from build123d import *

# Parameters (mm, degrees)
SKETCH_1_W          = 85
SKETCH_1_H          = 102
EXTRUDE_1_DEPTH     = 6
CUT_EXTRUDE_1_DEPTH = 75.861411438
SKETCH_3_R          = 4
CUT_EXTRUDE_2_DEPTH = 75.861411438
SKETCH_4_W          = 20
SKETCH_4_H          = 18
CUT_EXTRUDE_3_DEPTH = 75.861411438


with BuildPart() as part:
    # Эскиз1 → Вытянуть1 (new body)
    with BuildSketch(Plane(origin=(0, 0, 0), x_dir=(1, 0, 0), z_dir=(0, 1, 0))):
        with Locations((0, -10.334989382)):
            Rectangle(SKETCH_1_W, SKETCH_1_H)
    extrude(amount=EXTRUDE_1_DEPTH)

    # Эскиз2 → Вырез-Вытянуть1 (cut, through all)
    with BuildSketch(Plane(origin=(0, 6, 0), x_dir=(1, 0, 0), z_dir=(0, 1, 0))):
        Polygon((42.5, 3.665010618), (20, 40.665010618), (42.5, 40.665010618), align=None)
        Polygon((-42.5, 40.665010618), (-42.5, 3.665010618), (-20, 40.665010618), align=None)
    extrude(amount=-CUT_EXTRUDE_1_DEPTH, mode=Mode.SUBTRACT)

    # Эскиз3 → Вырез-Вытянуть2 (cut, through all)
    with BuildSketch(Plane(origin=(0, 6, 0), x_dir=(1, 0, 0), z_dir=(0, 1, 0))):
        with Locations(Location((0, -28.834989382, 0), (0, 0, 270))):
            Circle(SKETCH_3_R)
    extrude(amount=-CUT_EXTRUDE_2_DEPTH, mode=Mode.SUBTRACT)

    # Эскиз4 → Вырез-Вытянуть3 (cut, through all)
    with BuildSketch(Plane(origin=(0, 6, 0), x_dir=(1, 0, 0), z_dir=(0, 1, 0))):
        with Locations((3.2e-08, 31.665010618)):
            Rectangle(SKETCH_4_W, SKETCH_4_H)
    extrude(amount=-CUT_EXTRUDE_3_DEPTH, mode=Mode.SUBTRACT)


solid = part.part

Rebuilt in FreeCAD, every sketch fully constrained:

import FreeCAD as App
import Part
import Sketcher


def add_polygon(sketch, points):
    """Adds a closed chain of lines whose ends are joined by coincident constraints."""
    first, n = sketch.GeometryCount, len(points)
    for a, b in zip(points, points[1:] + points[:1]):
        sketch.addGeometry(Part.LineSegment(App.Vector(*a, 0), App.Vector(*b, 0)), False)
    for i in range(n):
        sketch.addConstraint(Sketcher.Constraint("Coincident", first + i, 2, first + (i + 1) % n, 1))

doc = App.newDocument("Part")
body = doc.addObject("PartDesign::Body", "Body")

# Sketch on XZ plane
sketch1 = body.newObject("Sketcher::SketchObject", "Sketch")
sketch1.AttachmentSupport = (doc.getObject("XZ_Plane"), [""])
sketch1.MapMode = "FlatFace"
add_polygon(sketch1, [(-42, -41), (-42, 61), (42, 61), (42, -41)])  # lines 0-3
sketch1.addConstraint([
    Sketcher.Constraint("Vertical", 0),
    Sketcher.Constraint("Horizontal", 1),
    Sketcher.Constraint("Vertical", 2),
    Sketcher.Constraint("Horizontal", 3),
    Sketcher.Constraint("DistanceX", 1, 1, 1, 2, 85.0),
    Sketcher.Constraint("DistanceY", 0, 1, 0, 2, 102.0),
    Sketcher.Constraint("DistanceX", 0, 2, -1, 1, 42.5),
    Sketcher.Constraint("DistanceY", -1, 1, 0, 2, 61.334989),
])
pad1 = body.newObject("PartDesign::Pad", "Pad")
pad1.Profile = sketch1
pad1.Length = 6
pad1.Reversed = True

# Sketch on XZ plane
sketch2 = body.newObject("Sketcher::SketchObject", "Sketch001")
sketch2.AttachmentSupport = (doc.getObject("XZ_Plane"), [""])
sketch2.MapMode = "FlatFace"
sketch2.AttachmentOffset = App.Placement(App.Vector(0, 0, -6), App.Rotation())
add_polygon(sketch2, [(20, -41), (42, -4), (42, -41)])  # lines 0-2
add_polygon(sketch2, [(-42, -41), (-42, -4), (-20, -41)])  # lines 3-5
sketch2.addConstraint([
    Sketcher.Constraint("Vertical", 1),
    Sketcher.Constraint("Horizontal", 2),
    Sketcher.Constraint("Vertical", 3),
    Sketcher.Constraint("Horizontal", 5),
    Sketcher.Constraint("Symmetric", 0, 2, 3, 2, -2),
    Sketcher.Constraint("Symmetric", 2, 2, 4, 2, -2),
    Sketcher.Constraint("DistanceY", 1, 2, 1, 1, 37.0),
    Sketcher.Constraint("DistanceX", 2, 2, 2, 1, 22.5),
    Sketcher.Constraint("DistanceX", -1, 1, 2, 2, 20.0),
    Sketcher.Constraint("DistanceY", 0, 2, -1, 1, 3.665011),
])
pocket1 = body.newObject("PartDesign::Pocket", "Pocket")
pocket1.Profile = sketch2
pocket1.Type = "ThroughAll"
pocket1.Reversed = True

# Sketch on XZ plane
sketch3 = body.newObject("Sketcher::SketchObject", "Sketch002")
sketch3.AttachmentSupport = (doc.getObject("XZ_Plane"), [""])
sketch3.MapMode = "FlatFace"
sketch3.AttachmentOffset = App.Placement(App.Vector(0, 0, -6), App.Rotation())
sketch3.addGeometry(Part.Circle(App.Vector(0, 28.8, 0), App.Vector(0, 0, 1), 4), False)
sketch3.addConstraint([
    Sketcher.Constraint("PointOnObject", 0, 3, -2),
    Sketcher.Constraint("Diameter", 0, 8.0),
    Sketcher.Constraint("DistanceY", -1, 1, 0, 3, 28.834989),
])
pocket2 = body.newObject("PartDesign::Pocket", "Pocket001")
pocket2.Profile = sketch3
pocket2.Type = "ThroughAll"
pocket2.Reversed = True

# Sketch on XZ plane
sketch4 = body.newObject("Sketcher::SketchObject", "Sketch003")
sketch4.AttachmentSupport = (doc.getObject("XZ_Plane"), [""])
sketch4.MapMode = "FlatFace"
sketch4.AttachmentOffset = App.Placement(App.Vector(0, 0, -6), App.Rotation())
add_polygon(sketch4, [(-10, -41), (-10, -23), (10, -23), (10, -41)])  # lines 0-3
sketch4.addConstraint([
    Sketcher.Constraint("Vertical", 0),
    Sketcher.Constraint("Horizontal", 1),
    Sketcher.Constraint("Vertical", 2),
    Sketcher.Constraint("Horizontal", 3),
    Sketcher.Constraint("DistanceX", 1, 1, 1, 2, 20.0),
    Sketcher.Constraint("DistanceY", 0, 1, 0, 2, 18.0),
    Sketcher.Constraint("DistanceX", 0, 2, -1, 1, 10.0),
    Sketcher.Constraint("DistanceY", 0, 2, -1, 1, 22.665011),
])
pocket3 = body.newObject("PartDesign::Pocket", "Pocket002")
pocket3.Profile = sketch4
pocket3.Type = "ThroughAll"
pocket3.Reversed = True

doc.recompute()
